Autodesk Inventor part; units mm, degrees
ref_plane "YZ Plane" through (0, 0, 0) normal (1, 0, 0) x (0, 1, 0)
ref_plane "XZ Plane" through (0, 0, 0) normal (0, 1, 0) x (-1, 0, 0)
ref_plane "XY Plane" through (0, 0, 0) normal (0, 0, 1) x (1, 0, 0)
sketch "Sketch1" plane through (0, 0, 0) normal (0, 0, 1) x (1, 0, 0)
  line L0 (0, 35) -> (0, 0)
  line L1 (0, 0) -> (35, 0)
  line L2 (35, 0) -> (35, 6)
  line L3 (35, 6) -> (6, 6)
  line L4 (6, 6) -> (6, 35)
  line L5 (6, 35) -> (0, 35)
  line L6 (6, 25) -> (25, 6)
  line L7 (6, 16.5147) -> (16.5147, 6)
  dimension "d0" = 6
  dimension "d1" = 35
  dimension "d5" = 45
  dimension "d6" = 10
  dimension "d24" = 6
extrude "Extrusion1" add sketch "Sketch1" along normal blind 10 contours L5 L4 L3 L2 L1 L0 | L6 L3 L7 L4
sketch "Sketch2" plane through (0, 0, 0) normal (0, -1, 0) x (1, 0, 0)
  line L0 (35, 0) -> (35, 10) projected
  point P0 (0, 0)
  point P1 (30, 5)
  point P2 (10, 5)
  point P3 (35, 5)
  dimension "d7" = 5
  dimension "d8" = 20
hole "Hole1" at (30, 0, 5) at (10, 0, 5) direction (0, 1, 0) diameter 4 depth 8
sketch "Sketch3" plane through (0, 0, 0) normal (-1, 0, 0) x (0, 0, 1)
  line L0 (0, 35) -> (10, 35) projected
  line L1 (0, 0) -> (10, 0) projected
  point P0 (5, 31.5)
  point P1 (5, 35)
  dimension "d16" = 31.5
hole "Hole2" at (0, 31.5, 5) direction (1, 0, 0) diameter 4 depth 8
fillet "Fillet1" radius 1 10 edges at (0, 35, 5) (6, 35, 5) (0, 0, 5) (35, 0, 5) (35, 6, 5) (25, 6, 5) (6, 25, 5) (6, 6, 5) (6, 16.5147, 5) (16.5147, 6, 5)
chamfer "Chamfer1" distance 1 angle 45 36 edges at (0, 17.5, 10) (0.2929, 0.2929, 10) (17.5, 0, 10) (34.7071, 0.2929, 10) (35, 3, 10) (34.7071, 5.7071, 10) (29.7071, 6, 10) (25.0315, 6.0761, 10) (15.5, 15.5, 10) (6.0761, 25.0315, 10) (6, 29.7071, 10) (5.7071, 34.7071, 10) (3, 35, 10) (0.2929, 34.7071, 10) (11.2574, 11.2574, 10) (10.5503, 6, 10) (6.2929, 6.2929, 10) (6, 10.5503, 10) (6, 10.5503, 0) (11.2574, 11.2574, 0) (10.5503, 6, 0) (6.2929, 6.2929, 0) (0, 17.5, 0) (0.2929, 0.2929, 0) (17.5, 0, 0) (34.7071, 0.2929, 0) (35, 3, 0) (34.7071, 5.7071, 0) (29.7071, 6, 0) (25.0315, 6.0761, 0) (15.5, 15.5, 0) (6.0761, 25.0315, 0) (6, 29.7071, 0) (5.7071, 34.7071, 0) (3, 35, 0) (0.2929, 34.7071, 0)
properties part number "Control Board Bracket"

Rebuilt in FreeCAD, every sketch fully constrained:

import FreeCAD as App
import Part
import Sketcher

V = App.Vector
Q = App.Units.Quantity


def edges_at(feature, points):
    """Names of the edges that pass closest to the given points."""
    edges = feature.Shape.Edges
    near = lambda p: min(range(len(edges)), key=lambda i: edges[i].distToShape(Part.Vertex(*p))[0])
    return sorted({f"Edge{near(p) + 1}" for p in points})


def add_polygon(sketch, points):
    """Adds a closed chain of lines whose ends are joined by coincident constraints."""
    first, n = sketch.GeometryCount, len(points)
    for a, b in zip(points, points[1:] + points[:1]):
        sketch.addGeometry(Part.LineSegment(App.Vector(*a, 0), App.Vector(*b, 0)), False)
    for i in range(n):
        sketch.addConstraint(Sketcher.Constraint("Coincident", first + i, 2, first + (i + 1) % n, 1))

doc = App.newDocument("Part")
params = doc.addObject("Spreadsheet::Sheet", "Params")
for row, (alias, value) in enumerate([
    ("sketch1_width", "6 mm"),
    ("sketch1_width2", "35 mm"),
    ("sketch1_width3", "10 mm"),
    ("sketch1_length", "14.87 mm"),
    ("pad1_length", "10 mm"),
    ("sketch2_diameter", "4 mm"),
    ("hole_diameter", "4 mm"),
    ("hole_depth", "8 mm"),
    ("sketch3_diameter", "4 mm"),
    ("hole2_diameter", "4 mm"),
    ("hole2_depth", "8 mm"),
    ("fillet_radius", "1 mm"),
    ("chamfer_size", "1 mm"),
], start=1):
    params.set(f"A{row}", alias)
    params.set(f"B{row}", "=" + value)
    params.setAlias(f"B{row}", alias)

body = doc.addObject("PartDesign::Body", "Body")

sketch1 = body.newObject("Sketcher::SketchObject", "Sketch")
sketch1.AttachmentSupport = (doc.getObject("XY_Plane"), [""])
sketch1.MapMode = "FlatFace"
add_polygon(sketch1, [(6, 35), (0, 35), (0, 0), (35, 0), (35, 6), (25, 6), (6, 25)])
add_polygon(sketch1, [(6, 6), (6, 17), (17, 6)])
sketch1.addConstraint([
    Sketcher.Constraint("Horizontal", 0),
    Sketcher.Constraint("Vertical", 1),
    Sketcher.Constraint("Horizontal", 2),
    Sketcher.Constraint("Vertical", 3),
    Sketcher.Constraint("Horizontal", 4),
    Sketcher.Constraint("Vertical", 6),
    Sketcher.Constraint("Vertical", 7),
    Sketcher.Constraint("Horizontal", 9),
    Sketcher.Constraint("Coincident", 1, 2, -1, 1),
    Sketcher.Constraint("Parallel", 5, 8),
    Sketcher.Constraint("Horizontal", 4, 2, 8, 2),
    Sketcher.Constraint("Vertical", 6, 2, 7, 2),
    Sketcher.Constraint("Equal", 2, 1),
    Sketcher.Constraint("Equal", 0, 3),
    Sketcher.Constraint("Equal", 4, 6),
    Sketcher.Constraint("DistanceX", 0, 2, 0, 1, Q("6 mm")),
    Sketcher.Constraint("DistanceX", 2, 1, 2, 2, Q("35 mm")),
    Sketcher.Constraint("DistanceX", 4, 2, 4, 1, Q("10 mm")),
    Sketcher.Constraint("Distance", 8, Q("14.87 mm")),
])
sketch1.setExpression("Constraints[25]", "Params.sketch1_width")
sketch1.setExpression("Constraints[26]", "Params.sketch1_width2")
sketch1.setExpression("Constraints[27]", "Params.sketch1_width3")
sketch1.setExpression("Constraints[28]", "Params.sketch1_length")
pad1 = body.newObject("PartDesign::Pad", "Pad")
pad1.Profile = sketch1
pad1.setExpression("Length", "Params.pad1_length")

sketch2 = body.newObject("Sketcher::SketchObject", "Sketch001")
sketch2.AttachmentSupport = (doc.getObject("XZ_Plane"), [""])
sketch2.MapMode = "FlatFace"
sketch2.addGeometry([
    Part.Circle(V(30, 5, 0), V(0, 0, 1), 2),
    Part.Circle(V(10, 5, 0), V(0, 0, 1), 2),
], False)
sketch2.addConstraint([
    Sketcher.Constraint("Equal", 0, 1),
    Sketcher.Constraint("Horizontal", 0, 3, 1, 3),
    Sketcher.Constraint("Diameter", 0, Q("4 mm")),
    Sketcher.Constraint("DistanceX", -1, 1, 0, 3, Q("30 mm")),
    Sketcher.Constraint("DistanceY", -1, 1, 0, 3, Q("5 mm")),
    Sketcher.Constraint("DistanceX", -1, 1, 1, 3, Q("10 mm")),
])
sketch2.setExpression("Constraints[2]", "Params.sketch2_diameter")
doc.recompute()
hole = body.newObject("PartDesign::Hole", "Hole")
hole.Profile = sketch2
hole.ThreadType = "None"
hole.setExpression("Diameter", "Params.hole_diameter")
hole.DepthType = "Dimension"
hole.setExpression("Depth", "Params.hole_depth")
hole.DrillPoint = "Flat"

sketch3 = body.newObject("Sketcher::SketchObject", "Sketch002")
sketch3.AttachmentSupport = (doc.getObject("YZ_Plane"), [""])
sketch3.MapMode = "FlatFace"
sketch3.addGeometry(Part.Circle(V(31.5, 5, 0), V(0, 0, 1), 2), False)
sketch3.addConstraint([
    Sketcher.Constraint("Diameter", 0, Q("4 mm")),
    Sketcher.Constraint("DistanceY", -1, 1, 0, 3, Q("5 mm")),
    Sketcher.Constraint("DistanceX", -1, 1, 0, 3, Q("31.5 mm")),
])
sketch3.setExpression("Constraints[0]", "Params.sketch3_diameter")
doc.recompute()
hole2 = body.newObject("PartDesign::Hole", "Hole001")
hole2.Profile = sketch3
hole2.ThreadType = "None"
hole2.setExpression("Diameter", "Params.hole2_diameter")
hole2.DepthType = "Dimension"
hole2.setExpression("Depth", "Params.hole2_depth")
hole2.DrillPoint = "Flat"
hole2.Reversed = True
doc.recompute()

fillet = body.newObject("PartDesign::Fillet", "Fillet")
fillet.Base = (hole2, edges_at(hole2, [
    (0, 35, 5),
    (6, 35, 5),
    (0, 0, 5),
    (35, 0, 5),
    (35, 6, 5),
    (25, 6, 5),
    (6, 25, 5),
    (6, 6, 5),
    (6, 16.515, 5),
    (16.515, 6, 5),
]))
fillet.setExpression("Radius", "Params.fillet_radius")
doc.recompute()

chamfer = body.newObject("PartDesign::Chamfer", "Chamfer")
chamfer.Base = (fillet, edges_at(fillet, [
    (0, 17.5, 10),
    (0.293, 0.293, 10),
    (17.5, 0, 10),
    (34.707, 0.293, 10),
    (35, 3, 10),
    (34.707, 5.707, 10),
    (29.707, 6, 10),
    (25.032, 6.076, 10),
    (15.5, 15.5, 10),
    (6.076, 25.032, 10),
    (6, 29.707, 10),
    (5.707, 34.707, 10),
    (3, 35, 10),
    (0.293, 34.707, 10),
    (11.257, 11.257, 10),
    (10.55, 6, 10),
    (6.293, 6.293, 10),
    (6, 10.55, 10),
    (6, 10.55, 0),
    (11.257, 11.257, 0),
    (10.55, 6, 0),
    (6.293, 6.293, 0),
    (0, 17.5, 0),
    (0.293, 0.293, 0),
    (17.5, 0, 0),
    (34.707, 0.293, 0),
    (35, 3, 0),
    (34.707, 5.707, 0),
    (29.707, 6, 0),
    (25.032, 6.076, 0),
    (15.5, 15.5, 0),
    (6.076, 25.032, 0),
    (6, 29.707, 0),
    (5.707, 34.707, 0),
    (3, 35, 0),
    (0.293, 34.707, 0),
]))
chamfer.setExpression("Size", "Params.chamfer_size")

doc.recompute()
